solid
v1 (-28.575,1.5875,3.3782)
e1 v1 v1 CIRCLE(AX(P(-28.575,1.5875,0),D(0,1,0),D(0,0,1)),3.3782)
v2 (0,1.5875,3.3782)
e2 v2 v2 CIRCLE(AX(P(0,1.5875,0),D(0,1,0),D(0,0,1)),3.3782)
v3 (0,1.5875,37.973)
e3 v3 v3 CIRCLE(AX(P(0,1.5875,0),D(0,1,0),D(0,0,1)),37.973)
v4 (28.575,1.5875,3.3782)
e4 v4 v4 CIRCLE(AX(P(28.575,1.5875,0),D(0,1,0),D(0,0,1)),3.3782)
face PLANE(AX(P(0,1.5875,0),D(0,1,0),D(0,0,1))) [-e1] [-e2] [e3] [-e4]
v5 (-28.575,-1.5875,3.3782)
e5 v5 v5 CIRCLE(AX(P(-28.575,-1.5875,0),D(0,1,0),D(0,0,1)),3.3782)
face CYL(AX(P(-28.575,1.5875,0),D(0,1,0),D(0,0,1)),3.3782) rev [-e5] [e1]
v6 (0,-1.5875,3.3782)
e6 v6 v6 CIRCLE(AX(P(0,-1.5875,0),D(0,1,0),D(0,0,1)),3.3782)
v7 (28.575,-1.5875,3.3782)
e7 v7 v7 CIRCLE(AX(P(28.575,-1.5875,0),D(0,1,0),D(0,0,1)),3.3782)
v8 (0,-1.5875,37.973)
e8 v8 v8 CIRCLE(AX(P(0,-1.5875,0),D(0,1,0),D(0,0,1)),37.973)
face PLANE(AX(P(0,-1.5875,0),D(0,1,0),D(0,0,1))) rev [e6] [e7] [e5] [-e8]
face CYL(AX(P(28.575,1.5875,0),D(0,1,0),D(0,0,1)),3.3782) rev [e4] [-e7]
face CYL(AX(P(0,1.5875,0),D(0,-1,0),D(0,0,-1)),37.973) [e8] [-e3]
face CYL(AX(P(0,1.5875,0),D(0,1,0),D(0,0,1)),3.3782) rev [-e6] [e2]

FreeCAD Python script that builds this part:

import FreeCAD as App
import Part
import Sketcher
Q = App.Units.Quantity

doc = App.newDocument("Part")
params = doc.addObject("Spreadsheet::Sheet", "Params")
for row, (alias, value) in enumerate([
    ("sketch1_diameter", "2.99 in"),
    ("pad1_length", "0.125 in"),
    ("sketch2_diameter", "0.266 in"),
    ("hole_diameter", "0.266 in"),
    ("sketch3_diameter", "0.266 in"),
    ("hole2_diameter", "0.266 in"),
], start=1):
    params.set(f"A{row}", alias)
    params.set(f"B{row}", "=" + value)
    params.setAlias(f"B{row}", alias)

body = doc.addObject("PartDesign::Body", "Body")

# Sketch on XZ plane
sketch1 = body.newObject("Sketcher::SketchObject", "Sketch")
sketch1.AttachmentSupport = (doc.getObject("XZ_Plane"), [""])
sketch1.MapMode = "FlatFace"
sketch1.addGeometry(Part.Circle(App.Vector(0, 0, 0), App.Vector(0, 0, 1), 37.973), False)
sketch1.addConstraint([
    Sketcher.Constraint("Coincident", 0, 3, -1, 1),
    Sketcher.Constraint("Diameter", 0, Q("2.99 in")),
])
sketch1.setExpression("Constraints[1]", "Params.sketch1_diameter")
pad1 = body.newObject("PartDesign::Pad", "Pad")
pad1.Profile = sketch1
pad1.setExpression("Length", "Params.pad1_length")
pad1.Midplane = True

# Sketch on XZ plane
sketch2 = body.newObject("Sketcher::SketchObject", "Sketch001")
sketch2.AttachmentSupport = (doc.getObject("XZ_Plane"), [""])
sketch2.MapMode = "FlatFace"
sketch2.AttachmentOffset = App.Placement(App.Vector(0, 0, -0.0625 * 25.4), App.Rotation())
sketch2.addGeometry([
    Part.Circle(App.Vector(-28.575, 0, 0), App.Vector(0, 0, 1), 3.3782),
    Part.Circle(App.Vector(28.575, 0, 0), App.Vector(0, 0, 1), 3.3782),
], False)
sketch2.addConstraint([
    Sketcher.Constraint("Equal", 0, 1),
    Sketcher.Constraint("Symmetric", 0, 3, 1, 3, -1, 1),
    Sketcher.Constraint("PointOnObject", 0, 3, -1),
    Sketcher.Constraint("Diameter", 0, Q("0.266 in")),
    Sketcher.Constraint("DistanceX", 0, 3, 1, 3, Q("2.25 in")),
])
sketch2.setExpression("Constraints[3]", "Params.sketch2_diameter")
doc.recompute()
hole = body.newObject("PartDesign::Hole", "Hole")
hole.Profile = sketch2
hole.ThreadType = "None"
hole.setExpression("Diameter", "Params.hole_diameter")
hole.DepthType = "ThroughAll"
hole.Reversed = True

# Sketch on XZ plane
sketch3 = body.newObject("Sketcher::SketchObject", "Sketch002")
sketch3.AttachmentSupport = (doc.getObject("XZ_Plane"), [""])
sketch3.MapMode = "FlatFace"
sketch3.AttachmentOffset = App.Placement(App.Vector(0, 0, -0.0625 * 25.4), App.Rotation())
sketch3.addGeometry(Part.Circle(App.Vector(0, 0, 0), App.Vector(0, 0, 1), 3.3782), False)
sketch3.addConstraint([
    Sketcher.Constraint("Coincident", 0, 3, -1, 1),
    Sketcher.Constraint("Diameter", 0, Q("0.266 in")),
])
sketch3.setExpression("Constraints[1]", "Params.sketch3_diameter")
doc.recompute()
hole2 = body.newObject("PartDesign::Hole", "Hole001")
hole2.Profile = sketch3
hole2.ThreadType = "None"
hole2.setExpression("Diameter", "Params.hole2_diameter")
hole2.DepthType = "ThroughAll"
hole2.Reversed = True

doc.recompute()
